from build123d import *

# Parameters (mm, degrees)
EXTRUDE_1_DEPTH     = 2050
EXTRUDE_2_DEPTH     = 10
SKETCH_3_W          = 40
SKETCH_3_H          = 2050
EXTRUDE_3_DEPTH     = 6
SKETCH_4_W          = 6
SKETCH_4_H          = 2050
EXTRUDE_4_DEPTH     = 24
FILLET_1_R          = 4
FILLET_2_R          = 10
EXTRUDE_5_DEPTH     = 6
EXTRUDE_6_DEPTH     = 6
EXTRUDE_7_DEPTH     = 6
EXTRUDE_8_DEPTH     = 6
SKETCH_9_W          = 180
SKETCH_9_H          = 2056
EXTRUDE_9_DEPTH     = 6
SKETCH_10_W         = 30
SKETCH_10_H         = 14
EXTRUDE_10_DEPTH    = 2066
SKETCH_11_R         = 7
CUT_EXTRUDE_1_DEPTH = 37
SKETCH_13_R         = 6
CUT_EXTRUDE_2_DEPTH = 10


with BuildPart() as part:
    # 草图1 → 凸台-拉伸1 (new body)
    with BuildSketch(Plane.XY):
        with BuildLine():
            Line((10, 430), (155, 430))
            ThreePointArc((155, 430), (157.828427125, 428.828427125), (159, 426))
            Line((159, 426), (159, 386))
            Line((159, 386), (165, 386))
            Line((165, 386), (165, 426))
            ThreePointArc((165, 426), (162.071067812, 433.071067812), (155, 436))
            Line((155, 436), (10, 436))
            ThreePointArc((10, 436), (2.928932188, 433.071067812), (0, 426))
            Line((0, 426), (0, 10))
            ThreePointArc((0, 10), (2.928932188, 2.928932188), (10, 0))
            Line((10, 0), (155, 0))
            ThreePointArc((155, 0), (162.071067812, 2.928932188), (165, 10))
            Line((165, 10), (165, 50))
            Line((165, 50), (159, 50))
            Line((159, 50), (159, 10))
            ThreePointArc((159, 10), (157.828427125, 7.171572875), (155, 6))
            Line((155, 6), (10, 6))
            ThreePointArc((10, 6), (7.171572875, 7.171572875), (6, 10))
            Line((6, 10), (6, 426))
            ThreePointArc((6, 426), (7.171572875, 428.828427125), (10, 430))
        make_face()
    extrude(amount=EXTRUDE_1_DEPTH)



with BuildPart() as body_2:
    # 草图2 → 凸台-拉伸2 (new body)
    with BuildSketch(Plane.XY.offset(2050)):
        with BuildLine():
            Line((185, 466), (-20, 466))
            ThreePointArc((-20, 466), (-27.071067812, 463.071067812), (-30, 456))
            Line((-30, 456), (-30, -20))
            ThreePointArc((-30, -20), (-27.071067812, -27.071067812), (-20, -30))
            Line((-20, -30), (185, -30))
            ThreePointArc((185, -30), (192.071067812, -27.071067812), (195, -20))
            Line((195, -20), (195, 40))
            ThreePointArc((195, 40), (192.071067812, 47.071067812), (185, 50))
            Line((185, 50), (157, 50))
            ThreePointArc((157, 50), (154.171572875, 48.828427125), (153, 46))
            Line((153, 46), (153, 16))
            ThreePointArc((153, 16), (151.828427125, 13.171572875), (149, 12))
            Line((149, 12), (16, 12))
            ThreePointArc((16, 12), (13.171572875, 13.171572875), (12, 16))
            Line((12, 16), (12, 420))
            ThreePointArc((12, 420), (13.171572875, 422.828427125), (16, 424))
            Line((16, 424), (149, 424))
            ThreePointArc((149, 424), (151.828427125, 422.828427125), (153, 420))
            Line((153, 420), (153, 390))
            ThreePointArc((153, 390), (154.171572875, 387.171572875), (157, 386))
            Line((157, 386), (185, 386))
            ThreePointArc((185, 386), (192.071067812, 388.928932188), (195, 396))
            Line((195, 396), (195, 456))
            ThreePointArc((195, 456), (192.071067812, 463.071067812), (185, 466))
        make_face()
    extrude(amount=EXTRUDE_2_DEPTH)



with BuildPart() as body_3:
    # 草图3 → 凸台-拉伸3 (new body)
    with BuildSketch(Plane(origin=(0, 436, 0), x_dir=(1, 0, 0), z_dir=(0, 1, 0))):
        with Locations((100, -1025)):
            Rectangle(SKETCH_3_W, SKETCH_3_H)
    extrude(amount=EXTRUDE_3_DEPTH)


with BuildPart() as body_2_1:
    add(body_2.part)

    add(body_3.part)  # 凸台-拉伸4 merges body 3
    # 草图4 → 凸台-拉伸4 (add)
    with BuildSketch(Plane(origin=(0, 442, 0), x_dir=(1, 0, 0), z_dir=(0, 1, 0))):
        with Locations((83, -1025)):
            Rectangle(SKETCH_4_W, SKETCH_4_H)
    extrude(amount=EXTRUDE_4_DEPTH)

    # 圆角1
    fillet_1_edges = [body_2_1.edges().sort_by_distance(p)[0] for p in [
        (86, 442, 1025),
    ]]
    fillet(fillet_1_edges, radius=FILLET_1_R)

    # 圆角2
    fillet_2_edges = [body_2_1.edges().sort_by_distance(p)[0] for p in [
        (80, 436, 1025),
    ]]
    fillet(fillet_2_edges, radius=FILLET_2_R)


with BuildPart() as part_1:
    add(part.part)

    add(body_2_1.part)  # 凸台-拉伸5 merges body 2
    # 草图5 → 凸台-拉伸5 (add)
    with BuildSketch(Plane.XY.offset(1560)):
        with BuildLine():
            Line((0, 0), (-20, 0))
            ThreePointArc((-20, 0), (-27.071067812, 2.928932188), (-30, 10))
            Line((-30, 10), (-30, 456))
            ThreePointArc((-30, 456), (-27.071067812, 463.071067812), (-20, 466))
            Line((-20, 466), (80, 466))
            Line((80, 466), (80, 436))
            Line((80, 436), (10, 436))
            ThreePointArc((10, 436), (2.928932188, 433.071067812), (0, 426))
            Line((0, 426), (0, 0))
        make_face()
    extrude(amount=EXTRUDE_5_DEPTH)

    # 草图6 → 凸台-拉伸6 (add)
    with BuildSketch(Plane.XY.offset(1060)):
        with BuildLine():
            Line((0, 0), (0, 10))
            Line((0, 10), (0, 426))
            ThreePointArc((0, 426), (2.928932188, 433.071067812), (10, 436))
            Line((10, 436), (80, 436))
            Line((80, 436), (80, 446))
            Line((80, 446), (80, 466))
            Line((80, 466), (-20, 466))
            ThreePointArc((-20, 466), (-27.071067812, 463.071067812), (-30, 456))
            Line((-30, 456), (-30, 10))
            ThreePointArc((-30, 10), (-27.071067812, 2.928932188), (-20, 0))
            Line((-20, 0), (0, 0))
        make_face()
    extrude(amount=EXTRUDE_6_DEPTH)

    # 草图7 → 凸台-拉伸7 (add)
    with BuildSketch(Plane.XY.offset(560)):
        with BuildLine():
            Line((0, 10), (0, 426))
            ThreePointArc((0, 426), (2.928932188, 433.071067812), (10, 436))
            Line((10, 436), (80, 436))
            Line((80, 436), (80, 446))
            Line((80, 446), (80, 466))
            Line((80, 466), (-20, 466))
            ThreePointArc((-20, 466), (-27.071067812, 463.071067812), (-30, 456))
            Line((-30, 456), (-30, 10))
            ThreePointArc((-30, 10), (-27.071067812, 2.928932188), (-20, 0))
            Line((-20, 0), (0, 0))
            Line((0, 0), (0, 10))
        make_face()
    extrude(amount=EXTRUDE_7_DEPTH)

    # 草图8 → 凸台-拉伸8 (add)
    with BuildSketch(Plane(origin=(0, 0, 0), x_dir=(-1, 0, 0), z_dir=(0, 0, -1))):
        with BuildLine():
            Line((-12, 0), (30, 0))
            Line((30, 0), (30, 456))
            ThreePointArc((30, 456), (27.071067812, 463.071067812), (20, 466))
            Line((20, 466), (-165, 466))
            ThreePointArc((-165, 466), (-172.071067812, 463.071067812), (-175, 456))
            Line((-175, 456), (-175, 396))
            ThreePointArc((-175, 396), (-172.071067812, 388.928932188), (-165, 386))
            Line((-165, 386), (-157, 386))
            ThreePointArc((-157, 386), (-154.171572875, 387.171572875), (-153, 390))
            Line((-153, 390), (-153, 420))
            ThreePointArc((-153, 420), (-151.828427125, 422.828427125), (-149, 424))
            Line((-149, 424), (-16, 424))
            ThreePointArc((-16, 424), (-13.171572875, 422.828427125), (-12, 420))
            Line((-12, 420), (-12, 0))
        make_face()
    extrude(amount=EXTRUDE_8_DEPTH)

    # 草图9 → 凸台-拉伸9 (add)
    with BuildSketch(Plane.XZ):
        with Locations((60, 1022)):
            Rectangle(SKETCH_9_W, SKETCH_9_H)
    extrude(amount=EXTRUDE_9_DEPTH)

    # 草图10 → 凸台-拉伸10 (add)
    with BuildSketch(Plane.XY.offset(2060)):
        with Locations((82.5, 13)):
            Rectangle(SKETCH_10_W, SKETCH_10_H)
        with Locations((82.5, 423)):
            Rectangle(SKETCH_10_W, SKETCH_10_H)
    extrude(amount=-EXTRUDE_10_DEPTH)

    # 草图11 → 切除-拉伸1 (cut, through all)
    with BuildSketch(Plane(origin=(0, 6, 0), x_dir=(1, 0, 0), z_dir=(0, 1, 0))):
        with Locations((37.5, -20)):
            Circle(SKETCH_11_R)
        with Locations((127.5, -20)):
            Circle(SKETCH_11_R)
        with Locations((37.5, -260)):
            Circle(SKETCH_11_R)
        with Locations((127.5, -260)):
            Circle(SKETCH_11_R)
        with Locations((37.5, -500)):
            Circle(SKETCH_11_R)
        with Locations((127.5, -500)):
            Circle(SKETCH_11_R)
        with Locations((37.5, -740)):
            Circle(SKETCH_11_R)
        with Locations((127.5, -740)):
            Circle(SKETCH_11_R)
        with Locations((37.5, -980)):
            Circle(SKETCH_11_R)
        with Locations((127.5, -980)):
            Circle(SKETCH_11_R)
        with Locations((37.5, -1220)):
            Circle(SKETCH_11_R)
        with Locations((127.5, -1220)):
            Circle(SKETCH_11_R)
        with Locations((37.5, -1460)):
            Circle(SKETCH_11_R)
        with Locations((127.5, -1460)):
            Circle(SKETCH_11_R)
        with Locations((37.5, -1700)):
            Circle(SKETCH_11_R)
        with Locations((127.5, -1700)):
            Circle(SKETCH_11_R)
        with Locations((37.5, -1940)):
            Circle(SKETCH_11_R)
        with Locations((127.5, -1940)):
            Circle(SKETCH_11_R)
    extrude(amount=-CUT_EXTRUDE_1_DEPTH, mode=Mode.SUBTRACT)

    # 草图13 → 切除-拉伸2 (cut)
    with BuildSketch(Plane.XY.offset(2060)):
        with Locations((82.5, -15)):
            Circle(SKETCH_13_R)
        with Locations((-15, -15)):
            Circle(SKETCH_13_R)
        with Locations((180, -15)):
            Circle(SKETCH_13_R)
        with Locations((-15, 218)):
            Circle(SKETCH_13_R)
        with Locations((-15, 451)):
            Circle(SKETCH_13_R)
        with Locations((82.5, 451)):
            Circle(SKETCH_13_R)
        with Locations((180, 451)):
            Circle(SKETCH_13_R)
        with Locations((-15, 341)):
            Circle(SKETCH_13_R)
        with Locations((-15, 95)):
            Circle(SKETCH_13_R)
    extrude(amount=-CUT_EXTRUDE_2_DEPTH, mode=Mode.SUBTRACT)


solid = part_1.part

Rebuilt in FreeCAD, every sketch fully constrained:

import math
import FreeCAD as App
import Part
import Sketcher
from FreeCAD import Vector
Q = App.Units.Quantity


def edges_at(feature, points):
    """Names of the edges that pass closest to the given points."""
    edges = feature.Shape.Edges
    near = lambda p: min(range(len(edges)), key=lambda i: edges[i].distToShape(Part.Vertex(*p))[0])
    return sorted({f"Edge{near(p) + 1}" for p in points})

doc = App.newDocument("Part")
params = doc.addObject("Spreadsheet::Sheet", "Params")
for row, (alias, value) in enumerate([
    ("sketch1_radius", "4 mm"),
    ("sketch1_radius2", "10 mm"),
    ("sketch1_width", "145 mm"),
    ("sketch1_height", "40 mm"),
    ("sketch1_height2", "416 mm"),
    ("pad1_length", "2050 mm"),
    ("sketch2_radius", "10 mm"),
    ("sketch2_radius2", "4 mm"),
    ("sketch2_width", "205 mm"),
    ("sketch2_width2", "28 mm"),
    ("sketch2_width3", "133 mm"),
    ("pad2_length", "10 mm"),
    ("sketch3_width", "40 mm"),
    ("sketch3_height", "2050 mm"),
    ("pad3_length", "6 mm"),
    ("sketch4_width", "6 mm"),
    ("sketch4_height", "2050 mm"),
    ("pad4_length", "24 mm"),
    ("fillet_radius", "4 mm"),
    ("fillet2_radius", "10 mm"),
    ("sketch5_radius", "10 mm"),
    ("sketch5_width", "20 mm"),
    ("sketch5_width2", "70 mm"),
    ("sketch5_height", "426 mm"),
    ("sketch5_height2", "30 mm"),
    ("pad5_length", "6 mm"),
    ("sketch6_radius", "10 mm"),
    ("sketch6_width", "70 mm"),
    ("sketch6_width2", "100 mm"),
    ("sketch6_height", "426 mm"),
    ("sketch6_height2", "30 mm"),
    ("pad6_length", "6 mm"),
    ("sketch7_radius", "10 mm"),
    ("sketch7_width", "70 mm"),
    ("sketch7_width2", "100 mm"),
    ("sketch7_height", "30 mm"),
    ("sketch7_height2", "446 mm"),
    ("pad7_length", "6 mm"),
    ("sketch8_radius", "10 mm"),
    ("sketch8_radius2", "4 mm"),
    ("sketch8_width", "42 mm"),
    ("sketch8_width2", "185 mm"),
    ("sketch8_width3", "8 mm"),
    ("pad8_length", "6 mm"),
    ("sketch9_width", "180 mm"),
    ("sketch9_height", "2056 mm"),
    ("pad9_length", "6 mm"),
    ("sketch10_width", "30 mm"),
    ("sketch10_height", "14 mm"),
    ("pad10_length", "2066 mm"),
    ("sketch11_diameter", "14 mm"),
    ("sketch12_diameter", "12 mm"),
    ("pocket2_length", "10 mm"),
], start=1):
    params.set(f"A{row}", alias)
    params.set(f"B{row}", "=" + value)
    params.setAlias(f"B{row}", alias)

body = doc.addObject("PartDesign::Body", "Body")

# Sketch on XY plane
sketch1 = doc.addObject("Sketcher::SketchObject", "Sketch")
body.addObject(sketch1)
sketch1.AttachmentSupport = (doc.XY_Plane, [""])
sketch1.MapMode = "FlatFace"
sketch1.addGeometry([
    Part.LineSegment(Vector(10, 430, 0), Vector(155, 430, 0)),  # 0
    Part.ArcOfCircle(Part.Circle(Vector(155, 426, 0), Vector(0, 0, 1), 4), math.radians(0), math.radians(90)),  # 1
    Part.LineSegment(Vector(159, 426, 0), Vector(159, 386, 0)),  # 2
    Part.LineSegment(Vector(159, 386, 0), Vector(165, 386, 0)),  # 3
    Part.LineSegment(Vector(165, 386, 0), Vector(165, 426, 0)),  # 4
    Part.ArcOfCircle(Part.Circle(Vector(155, 426, 0), Vector(0, 0, 1), 10), math.radians(0), math.radians(90)),  # 5
    Part.LineSegment(Vector(155, 436, 0), Vector(10, 436, 0)),  # 6
    Part.ArcOfCircle(Part.Circle(Vector(10, 426, 0), Vector(0, 0, 1), 10), math.radians(90), math.radians(180)),  # 7
    Part.LineSegment(Vector(0, 426, 0), Vector(0, 10, 0)),  # 8
    Part.ArcOfCircle(Part.Circle(Vector(10, 10, 0), Vector(0, 0, 1), 10), math.radians(180), math.radians(270)),  # 9
    Part.LineSegment(Vector(10, 0, 0), Vector(155, 0, 0)),  # 10
    Part.ArcOfCircle(Part.Circle(Vector(155, 10, 0), Vector(0, 0, 1), 10), math.radians(-90), math.radians(0)),  # 11
    Part.LineSegment(Vector(165, 10, 0), Vector(165, 50, 0)),  # 12
    Part.LineSegment(Vector(165, 50, 0), Vector(159, 50, 0)),  # 13
    Part.LineSegment(Vector(159, 50, 0), Vector(159, 10, 0)),  # 14
    Part.ArcOfCircle(Part.Circle(Vector(155, 10, 0), Vector(0, 0, 1), 4), math.radians(-90), math.radians(0)),  # 15
    Part.LineSegment(Vector(155, 6, 0), Vector(10, 6, 0)),  # 16
    Part.ArcOfCircle(Part.Circle(Vector(10, 10, 0), Vector(0, 0, 1), 4), math.radians(180), math.radians(270)),  # 17
    Part.LineSegment(Vector(6, 10, 0), Vector(6, 426, 0)),  # 18
    Part.ArcOfCircle(Part.Circle(Vector(10, 426, 0), Vector(0, 0, 1), 4), math.radians(90), math.radians(180)),  # 19
], False)
sketch1.addConstraint([
    Sketcher.Constraint("Tangent", 0, 2, 1, 2),
    Sketcher.Constraint("Tangent", 1, 1, 2, 1),
    Sketcher.Constraint("Coincident", 2, 2, 3, 1),
    Sketcher.Constraint("Coincident", 3, 2, 4, 1),
    Sketcher.Constraint("Tangent", 4, 2, 5, 1),
    Sketcher.Constraint("Tangent", 5, 2, 6, 1),
    Sketcher.Constraint("Tangent", 6, 2, 7, 1),
    Sketcher.Constraint("Tangent", 7, 2, 8, 1),
    Sketcher.Constraint("Tangent", 8, 2, 9, 1),
    Sketcher.Constraint("Tangent", 9, 2, 10, 1),
    Sketcher.Constraint("Tangent", 10, 2, 11, 1),
    Sketcher.Constraint("Tangent", 11, 2, 12, 1),
    Sketcher.Constraint("Coincident", 12, 2, 13, 1),
    Sketcher.Constraint("Coincident", 13, 2, 14, 1),
    Sketcher.Constraint("Tangent", 14, 2, 15, 2),
    Sketcher.Constraint("Tangent", 15, 1, 16, 1),
    Sketcher.Constraint("Tangent", 16, 2, 17, 2),
    Sketcher.Constraint("Tangent", 17, 1, 18, 1),
    Sketcher.Constraint("Tangent", 18, 2, 19, 2),
    Sketcher.Constraint("Tangent", 19, 1, 0, 1),
    Sketcher.Constraint("Horizontal", 0),
    Sketcher.Constraint("Vertical", 2),
    Sketcher.Constraint("Horizontal", 3),
    Sketcher.Constraint("Vertical", 4),
    Sketcher.Constraint("Horizontal", 6),
    Sketcher.Constraint("Vertical", 8),
    Sketcher.Constraint("Horizontal", 10),
    Sketcher.Constraint("Vertical", 12),
    Sketcher.Constraint("Horizontal", 13),
    Sketcher.Constraint("Vertical", 14),
    Sketcher.Constraint("Horizontal", 16),
    Sketcher.Constraint("Vertical", 18),
    Sketcher.Constraint("Coincident", 5, 3, 1, 3),
    Sketcher.Constraint("Coincident", 15, 3, 11, 3),
    Sketcher.Constraint("Coincident", 17, 3, 9, 3),
    Sketcher.Constraint("Coincident", 19, 3, 7, 3),
    Sketcher.Constraint("Equal", 5, 7),
    Sketcher.Constraint("Equal", 7, 9),
    Sketcher.Constraint("Equal", 9, 11),
    Sketcher.Constraint("PointOnObject", 7, 2, -2),
    Sketcher.Constraint("PointOnObject", 9, 2, -1),
    Sketcher.Constraint("Vertical", 5, 3, 11, 3),
    Sketcher.Constraint("Equal", 4, 12),
    Sketcher.Constraint("Radius", 1, Q("4 mm")),
    Sketcher.Constraint("Radius", 5, Q("10 mm")),
    Sketcher.Constraint("DistanceX", 0, 1, 0, 2, Q("145 mm")),
    Sketcher.Constraint("DistanceY", 2, 2, 2, 1, Q("40 mm")),
    Sketcher.Constraint("DistanceY", 8, 2, 8, 1, Q("416 mm")),
])
sketch1.setExpression("Constraints[43]", "Params.sketch1_radius")
sketch1.setExpression("Constraints[44]", "Params.sketch1_radius2")
sketch1.setExpression("Constraints[45]", "Params.sketch1_width")
sketch1.setExpression("Constraints[46]", "Params.sketch1_height")
sketch1.setExpression("Constraints[47]", "Params.sketch1_height2")
pad1 = doc.addObject("PartDesign::Pad", "Pad")
body.addObject(pad1)
pad1.Profile = sketch1
pad1.setExpression("Length", "Params.pad1_length")
body2 = doc.addObject("PartDesign::Body", "Body001")

# Sketch on XY plane
sketch2 = doc.addObject("Sketcher::SketchObject", "Sketch001")
body2.addObject(sketch2)
sketch2.AttachmentSupport = (doc.getObject("XY_Plane001"), [""])
sketch2.MapMode = "FlatFace"
sketch2.AttachmentOffset = App.Placement(Vector(0, 0, 2050), App.Rotation())
sketch2.addGeometry([
    Part.LineSegment(Vector(185, 466, 0), Vector(-20, 466, 0)),  # 0
    Part.ArcOfCircle(Part.Circle(Vector(-20, 456, 0), Vector(0, 0, 1), 10), math.radians(90), math.radians(180)),  # 1
    Part.LineSegment(Vector(-30, 456, 0), Vector(-30, -20, 0)),  # 2
    Part.ArcOfCircle(Part.Circle(Vector(-20, -20, 0), Vector(0, 0, 1), 10), math.radians(180), math.radians(270)),  # 3
    Part.LineSegment(Vector(-20, -30, 0), Vector(185, -30, 0)),  # 4
    Part.ArcOfCircle(Part.Circle(Vector(185, -20, 0), Vector(0, 0, 1), 10), math.radians(-90), math.radians(0)),  # 5
    Part.LineSegment(Vector(195, -20, 0), Vector(195, 40, 0)),  # 6
    Part.ArcOfCircle(Part.Circle(Vector(185, 40, 0), Vector(0, 0, 1), 10), math.radians(0), math.radians(90)),  # 7
    Part.LineSegment(Vector(185, 50, 0), Vector(157, 50, 0)),  # 8
    Part.ArcOfCircle(Part.Circle(Vector(157, 46, 0), Vector(0, 0, 1), 4), math.radians(90), math.radians(180)),  # 9
    Part.LineSegment(Vector(153, 46, 0), Vector(153, 16, 0)),  # 10
    Part.ArcOfCircle(Part.Circle(Vector(149, 16, 0), Vector(0, 0, 1), 4), math.radians(-90), math.radians(0)),  # 11
    Part.LineSegment(Vector(149, 12, 0), Vector(16, 12, 0)),  # 12
    Part.ArcOfCircle(Part.Circle(Vector(16, 16, 0), Vector(0, 0, 1), 4), math.radians(180), math.radians(270)),  # 13
    Part.LineSegment(Vector(12, 16, 0), Vector(12, 420, 0)),  # 14
    Part.ArcOfCircle(Part.Circle(Vector(16, 420, 0), Vector(0, 0, 1), 4), math.radians(90), math.radians(180)),  # 15
    Part.LineSegment(Vector(16, 424, 0), Vector(149, 424, 0)),  # 16
    Part.ArcOfCircle(Part.Circle(Vector(149, 420, 0), Vector(0, 0, 1), 4), math.radians(0), math.radians(90)),  # 17
    Part.LineSegment(Vector(153, 420, 0), Vector(153, 390, 0)),  # 18
    Part.ArcOfCircle(Part.Circle(Vector(157, 390, 0), Vector(0, 0, 1), 4), math.radians(180), math.radians(270)),  # 19
    Part.LineSegment(Vector(157, 386, 0), Vector(185, 386, 0)),  # 20
    Part.ArcOfCircle(Part.Circle(Vector(185, 396, 0), Vector(0, 0, 1), 10), math.radians(-90), math.radians(0)),  # 21
    Part.LineSegment(Vector(195, 396, 0), Vector(195, 456, 0)),  # 22
    Part.ArcOfCircle(Part.Circle(Vector(185, 456, 0), Vector(0, 0, 1), 10), math.radians(0), math.radians(90)),  # 23
], False)
sketch2.addConstraint([
    Sketcher.Constraint("Tangent", 0, 2, 1, 1),
    Sketcher.Constraint("Tangent", 1, 2, 2, 1),
    Sketcher.Constraint("Tangent", 2, 2, 3, 1),
    Sketcher.Constraint("Tangent", 3, 2, 4, 1),
    Sketcher.Constraint("Tangent", 4, 2, 5, 1),
    Sketcher.Constraint("Tangent", 5, 2, 6, 1),
    Sketcher.Constraint("Tangent", 6, 2, 7, 1),
    Sketcher.Constraint("Tangent", 7, 2, 8, 1),
    Sketcher.Constraint("Tangent", 8, 2, 9, 1),
    Sketcher.Constraint("Tangent", 9, 2, 10, 1),
    Sketcher.Constraint("Tangent", 10, 2, 11, 2),
    Sketcher.Constraint("Tangent", 11, 1, 12, 1),
    Sketcher.Constraint("Tangent", 12, 2, 13, 2),
    Sketcher.Constraint("Tangent", 13, 1, 14, 1),
    Sketcher.Constraint("Tangent", 14, 2, 15, 2),
    Sketcher.Constraint("Tangent", 15, 1, 16, 1),
    Sketcher.Constraint("Tangent", 16, 2, 17, 2),
    Sketcher.Constraint("Tangent", 17, 1, 18, 1),
    Sketcher.Constraint("Tangent", 18, 2, 19, 1),
    Sketcher.Constraint("Tangent", 19, 2, 20, 1),
    Sketcher.Constraint("Tangent", 20, 2, 21, 1),
    Sketcher.Constraint("Tangent", 21, 2, 22, 1),
    Sketcher.Constraint("Tangent", 22, 2, 23, 1),
    Sketcher.Constraint("Tangent", 23, 2, 0, 1),
    Sketcher.Constraint("Horizontal", 0),
    Sketcher.Constraint("Vertical", 2),
    Sketcher.Constraint("Horizontal", 4),
    Sketcher.Constraint("Vertical", 6),
    Sketcher.Constraint("Horizontal", 8),
    Sketcher.Constraint("Vertical", 10),
    Sketcher.Constraint("Horizontal", 12),
    Sketcher.Constraint("Vertical", 14),
    Sketcher.Constraint("Horizontal", 16),
    Sketcher.Constraint("Vertical", 18),
    Sketcher.Constraint("Horizontal", 20),
    Sketcher.Constraint("Vertical", 22),
    Sketcher.Constraint("Equal", 1, 3),
    Sketcher.Constraint("Equal", 3, 5),
    Sketcher.Constraint("Equal", 5, 7),
    Sketcher.Constraint("Equal", 9, 11),
    Sketcher.Constraint("Equal", 11, 13),
    Sketcher.Constraint("Equal", 13, 15),
    Sketcher.Constraint("Equal", 15, 17),
    Sketcher.Constraint("Equal", 17, 19),
    Sketcher.Constraint("Equal", 7, 21),
    Sketcher.Constraint("Equal", 21, 23),
    Sketcher.Constraint("Vertical", 11, 3, 17, 3),
    Sketcher.Constraint("Vertical", 7, 3, 21, 3),
    Sketcher.Constraint("Equal", 10, 18),
    Sketcher.Constraint("Equal", 6, 22),
    Sketcher.Constraint("Radius", 1, Q("10 mm")),
    Sketcher.Constraint("Radius", 9, Q("4 mm")),
    Sketcher.Constraint("DistanceX", 0, 2, 0, 1, Q("205 mm")),
    Sketcher.Constraint("DistanceX", 8, 2, 8, 1, Q("28 mm")),
    Sketcher.Constraint("DistanceX", 12, 2, 12, 1, Q("133 mm")),
    Sketcher.Constraint("DistanceY", 2, 2, 2, 1, Q("476 mm")),
    Sketcher.Constraint("DistanceY", 6, 1, 6, 2, Q("60 mm")),
    Sketcher.Constraint("DistanceY", 10, 2, 10, 1, Q("30 mm")),
    Sketcher.Constraint("DistanceX", 1, 3, -1, 1, Q("20 mm")),
    Sketcher.Constraint("DistanceY", -1, 1, 1, 3, Q("456 mm")),
])
sketch2.setExpression("Constraints[50]", "Params.sketch2_radius")
sketch2.setExpression("Constraints[51]", "Params.sketch2_radius2")
sketch2.setExpression("Constraints[52]", "Params.sketch2_width")
sketch2.setExpression("Constraints[53]", "Params.sketch2_width2")
sketch2.setExpression("Constraints[54]", "Params.sketch2_width3")
pad2 = doc.addObject("PartDesign::Pad", "Pad001")
body2.addObject(pad2)
pad2.Profile = sketch2
pad2.setExpression("Length", "Params.pad2_length")
body3 = doc.addObject("PartDesign::Body", "Body002")

# Sketch on XZ plane
sketch3 = doc.addObject("Sketcher::SketchObject", "Sketch002")
body3.addObject(sketch3)
sketch3.AttachmentSupport = (doc.getObject("XZ_Plane002"), [""])
sketch3.MapMode = "FlatFace"
sketch3.AttachmentOffset = App.Placement(Vector(0, 0, -436), App.Rotation())
sketch3.addGeometry([
    Part.LineSegment(Vector(80, 0, 0), Vector(80, 2050, 0)),
    Part.LineSegment(Vector(80, 2050, 0), Vector(120, 2050, 0)),
    Part.LineSegment(Vector(120, 2050, 0), Vector(120, 0, 0)),
    Part.LineSegment(Vector(120, 0, 0), Vector(80, 0, 0)),
], False)
sketch3.addConstraint([
    Sketcher.Constraint("Coincident", 0, 2, 1, 1),
    Sketcher.Constraint("Coincident", 1, 2, 2, 1),
    Sketcher.Constraint("Coincident", 2, 2, 3, 1),
    Sketcher.Constraint("Coincident", 3, 2, 0, 1),
    Sketcher.Constraint("Vertical", 0),
    Sketcher.Constraint("Horizontal", 1),
    Sketcher.Constraint("Vertical", 2),
    Sketcher.Constraint("Horizontal", 3),
    Sketcher.Constraint("PointOnObject", 2, 2, -1),
    Sketcher.Constraint("DistanceX", 1, 1, 1, 2, Q("40 mm")),
    Sketcher.Constraint("DistanceY", 0, 1, 0, 2, Q("2050 mm")),
    Sketcher.Constraint("DistanceX", -1, 1, 0, 2, Q("80 mm")),
])
sketch3.setExpression("Constraints[9]", "Params.sketch3_width")
sketch3.setExpression("Constraints[10]", "Params.sketch3_height")
pad3 = doc.addObject("PartDesign::Pad", "Pad002")
body3.addObject(pad3)
pad3.Profile = sketch3
pad3.setExpression("Length", "Params.pad3_length")
pad3.Reversed = True
doc.recompute()

boolean = doc.addObject("PartDesign::Boolean", "Boolean")
body2.addObject(boolean)
boolean.Type = "Fuse"
boolean.addObjects([body3])

# Sketch on XZ plane
sketch4 = doc.addObject("Sketcher::SketchObject", "Sketch003")
body2.addObject(sketch4)
sketch4.AttachmentSupport = (doc.getObject("XZ_Plane001"), [""])
sketch4.MapMode = "FlatFace"
sketch4.AttachmentOffset = App.Placement(Vector(0, 0, -442), App.Rotation())
sketch4.addGeometry([
    Part.LineSegment(Vector(80, 0, 0), Vector(80, 2050, 0)),
    Part.LineSegment(Vector(80, 2050, 0), Vector(86, 2050, 0)),
    Part.LineSegment(Vector(86, 2050, 0), Vector(86, 0, 0)),
    Part.LineSegment(Vector(86, 0, 0), Vector(80, 0, 0)),
], False)
sketch4.addConstraint([
    Sketcher.Constraint("Coincident", 0, 2, 1, 1),
    Sketcher.Constraint("Coincident", 1, 2, 2, 1),
    Sketcher.Constraint("Coincident", 2, 2, 3, 1),
    Sketcher.Constraint("Coincident", 3, 2, 0, 1),
    Sketcher.Constraint("Vertical", 0),
    Sketcher.Constraint("Horizontal", 1),
    Sketcher.Constraint("Vertical", 2),
    Sketcher.Constraint("Horizontal", 3),
    Sketcher.Constraint("PointOnObject", 2, 2, -1),
    Sketcher.Constraint("DistanceX", 1, 1, 1, 2, Q("6 mm")),
    Sketcher.Constraint("DistanceY", 0, 1, 0, 2, Q("2050 mm")),
    Sketcher.Constraint("DistanceX", -1, 1, 0, 2, Q("80 mm")),
])
sketch4.setExpression("Constraints[9]", "Params.sketch4_width")
sketch4.setExpression("Constraints[10]", "Params.sketch4_height")
pad4 = doc.addObject("PartDesign::Pad", "Pad003")
body2.addObject(pad4)
pad4.Profile = sketch4
pad4.setExpression("Length", "Params.pad4_length")
pad4.Reversed = True
doc.recompute()

fillet = doc.addObject("PartDesign::Fillet", "Fillet")
body2.addObject(fillet)
fillet.Base = (pad4, edges_at(pad4, [(86, 442, 1025)]))
fillet.setExpression("Radius", "Params.fillet_radius")
doc.recompute()

fillet2 = doc.addObject("PartDesign::Fillet", "Fillet001")
body2.addObject(fillet2)
fillet2.Base = (fillet, edges_at(fillet, [(80, 436, 1025)]))
fillet2.setExpression("Radius", "Params.fillet2_radius")
doc.recompute()

boolean2 = doc.addObject("PartDesign::Boolean", "Boolean001")
body.addObject(boolean2)
boolean2.Type = "Fuse"
boolean2.addObjects([body2])

# Sketch on XY plane
sketch5 = doc.addObject("Sketcher::SketchObject", "Sketch004")
body.addObject(sketch5)
sketch5.AttachmentSupport = (doc.XY_Plane, [""])
sketch5.MapMode = "FlatFace"
sketch5.AttachmentOffset = App.Placement(Vector(0, 0, 1560), App.Rotation())
sketch5.addGeometry([
    Part.LineSegment(Vector(-20, 0, 0), Vector(0, 0, 0)),  # 0
    Part.LineSegment(Vector(0, 0, 0), Vector(0, 426, 0)),  # 1
    Part.ArcOfCircle(Part.Circle(Vector(10, 426, 0), Vector(0, 0, 1), 10), math.radians(90), math.radians(180)),  # 2
    Part.LineSegment(Vector(10, 436, 0), Vector(80, 436, 0)),  # 3
    Part.LineSegment(Vector(80, 436, 0), Vector(80, 466, 0)),  # 4
    Part.LineSegment(Vector(80, 466, 0), Vector(-20, 466, 0)),  # 5
    Part.ArcOfCircle(Part.Circle(Vector(-20, 456, 0), Vector(0, 0, 1), 10), math.radians(90), math.radians(180)),  # 6
    Part.LineSegment(Vector(-30, 456, 0), Vector(-30, 10, 0)),  # 7
    Part.ArcOfCircle(Part.Circle(Vector(-20, 10, 0), Vector(0, 0, 1), 10), math.radians(180), math.radians(270)),  # 8
], False)
sketch5.addConstraint([
    Sketcher.Constraint("Coincident", 0, 2, 1, 1),
    Sketcher.Constraint("Tangent", 1, 2, 2, 2),
    Sketcher.Constraint("Tangent", 2, 1, 3, 1),
    Sketcher.Constraint("Coincident", 3, 2, 4, 1),
    Sketcher.Constraint("Coincident", 4, 2, 5, 1),
    Sketcher.Constraint("Tangent", 5, 2, 6, 1),
    Sketcher.Constraint("Tangent", 6, 2, 7, 1),
    Sketcher.Constraint("Tangent", 7, 2, 8, 1),
    Sketcher.Constraint("Tangent", 8, 2, 0, 1),
    Sketcher.Constraint("Horizontal", 0),
    Sketcher.Constraint("Vertical", 1),
    Sketcher.Constraint("Horizontal", 3),
    Sketcher.Constraint("Vertical", 4),
    Sketcher.Constraint("Horizontal", 5),
    Sketcher.Constraint("Vertical", 7),
    Sketcher.Constraint("Coincident", 0, 2, -1, 1),
    Sketcher.Constraint("Equal", 2, 6),
    Sketcher.Constraint("Equal", 6, 8),
    Sketcher.Constraint("Radius", 2, Q("10 mm")),
    Sketcher.Constraint("DistanceX", 0, 1, 0, 2, Q("20 mm")),
    Sketcher.Constraint("DistanceX", 3, 1, 3, 2, Q("70 mm")),
    Sketcher.Constraint("DistanceY", 1, 1, 1, 2, Q("426 mm")),
    Sketcher.Constraint("DistanceY", 4, 1, 4, 2, Q("30 mm")),
])
sketch5.setExpression("Constraints[18]", "Params.sketch5_radius")
sketch5.setExpression("Constraints[19]", "Params.sketch5_width")
sketch5.setExpression("Constraints[20]", "Params.sketch5_width2")
sketch5.setExpression("Constraints[21]", "Params.sketch5_height")
sketch5.setExpression("Constraints[22]", "Params.sketch5_height2")
pad5 = doc.addObject("PartDesign::Pad", "Pad004")
body.addObject(pad5)
pad5.Profile = sketch5
pad5.setExpression("Length", "Params.pad5_length")

# Sketch on XY plane
sketch6 = doc.addObject("Sketcher::SketchObject", "Sketch005")
body.addObject(sketch6)
sketch6.AttachmentSupport = (doc.XY_Plane, [""])
sketch6.MapMode = "FlatFace"
sketch6.AttachmentOffset = App.Placement(Vector(0, 0, 1060), App.Rotation())
sketch6.addGeometry([
    Part.LineSegment(Vector(0, 0, 0), Vector(0, 426, 0)),  # 0
    Part.ArcOfCircle(Part.Circle(Vector(10, 426, 0), Vector(0, 0, 1), 10), math.radians(90), math.radians(180)),  # 1
    Part.LineSegment(Vector(10, 436, 0), Vector(80, 436, 0)),  # 2
    Part.LineSegment(Vector(80, 436, 0), Vector(80, 466, 0)),  # 3
    Part.LineSegment(Vector(80, 466, 0), Vector(-20, 466, 0)),  # 4
    Part.ArcOfCircle(Part.Circle(Vector(-20, 456, 0), Vector(0, 0, 1), 10), math.radians(90), math.radians(180)),  # 5
    Part.LineSegment(Vector(-30, 456, 0), Vector(-30, 10, 0)),  # 6
    Part.ArcOfCircle(Part.Circle(Vector(-20, 10, 0), Vector(0, 0, 1), 10), math.radians(180), math.radians(270)),  # 7
    Part.LineSegment(Vector(-20, 0, 0), Vector(0, 0, 0)),  # 8
], False)
sketch6.addConstraint([
    Sketcher.Constraint("Tangent", 0, 2, 1, 2),
    Sketcher.Constraint("Tangent", 1, 1, 2, 1),
    Sketcher.Constraint("Coincident", 2, 2, 3, 1),
    Sketcher.Constraint("Coincident", 3, 2, 4, 1),
    Sketcher.Constraint("Tangent", 4, 2, 5, 1),
    Sketcher.Constraint("Tangent", 5, 2, 6, 1),
    Sketcher.Constraint("Tangent", 6, 2, 7, 1),
    Sketcher.Constraint("Tangent", 7, 2, 8, 1),
    Sketcher.Constraint("Coincident", 8, 2, 0, 1),
    Sketcher.Constraint("Vertical", 0),
    Sketcher.Constraint("Horizontal", 2),
    Sketcher.Constraint("Vertical", 3),
    Sketcher.Constraint("Horizontal", 4),
    Sketcher.Constraint("Vertical", 6),
    Sketcher.Constraint("Horizontal", 8),
    Sketcher.Constraint("Coincident", 8, 2, -1, 1),
    Sketcher.Constraint("Equal", 1, 5),
    Sketcher.Constraint("Equal", 5, 7),
    Sketcher.Constraint("Radius", 1, Q("10 mm")),
    Sketcher.Constraint("DistanceX", 2, 1, 2, 2, Q("70 mm")),
    Sketcher.Constraint("DistanceX", 4, 2, 4, 1, Q("100 mm")),
    Sketcher.Constraint("DistanceY", 0, 1, 0, 2, Q("426 mm")),
    Sketcher.Constraint("DistanceY", 3, 1, 3, 2, Q("30 mm")),
])
sketch6.setExpression("Constraints[18]", "Params.sketch6_radius")
sketch6.setExpression("Constraints[19]", "Params.sketch6_width")
sketch6.setExpression("Constraints[20]", "Params.sketch6_width2")
sketch6.setExpression("Constraints[21]", "Params.sketch6_height")
sketch6.setExpression("Constraints[22]", "Params.sketch6_height2")
pad6 = doc.addObject("PartDesign::Pad", "Pad005")
body.addObject(pad6)
pad6.Profile = sketch6
pad6.setExpression("Length", "Params.pad6_length")

# Sketch on XY plane
sketch7 = doc.addObject("Sketcher::SketchObject", "Sketch006")
body.addObject(sketch7)
sketch7.AttachmentSupport = (doc.XY_Plane, [""])
sketch7.MapMode = "FlatFace"
sketch7.AttachmentOffset = App.Placement(Vector(0, 0, 560), App.Rotation())
sketch7.addGeometry([
    Part.ArcOfCircle(Part.Circle(Vector(10, 426, 0), Vector(0, 0, 1), 10), math.radians(90), math.radians(180)),  # 0
    Part.LineSegment(Vector(10, 436, 0), Vector(80, 436, 0)),  # 1
    Part.LineSegment(Vector(80, 436, 0), Vector(80, 466, 0)),  # 2
    Part.LineSegment(Vector(80, 466, 0), Vector(-20, 466, 0)),  # 3
    Part.ArcOfCircle(Part.Circle(Vector(-20, 456, 0), Vector(0, 0, 1), 10), math.radians(90), math.radians(180)),  # 4
    Part.LineSegment(Vector(-30, 456, 0), Vector(-30, 10, 0)),  # 5
    Part.ArcOfCircle(Part.Circle(Vector(-20, 10, 0), Vector(0, 0, 1), 10), math.radians(180), math.radians(270)),  # 6
    Part.LineSegment(Vector(-20, 0, 0), Vector(0, 0, 0)),  # 7
    Part.LineSegment(Vector(0, 0, 0), Vector(0, 426, 0)),  # 8
], False)
sketch7.addConstraint([
    Sketcher.Constraint("Tangent", 0, 1, 1, 1),
    Sketcher.Constraint("Coincident", 1, 2, 2, 1),
    Sketcher.Constraint("Coincident", 2, 2, 3, 1),
    Sketcher.Constraint("Tangent", 3, 2, 4, 1),
    Sketcher.Constraint("Tangent", 4, 2, 5, 1),
    Sketcher.Constraint("Tangent", 5, 2, 6, 1),
    Sketcher.Constraint("Tangent", 6, 2, 7, 1),
    Sketcher.Constraint("Coincident", 7, 2, 8, 1),
    Sketcher.Constraint("Tangent", 8, 2, 0, 2),
    Sketcher.Constraint("Horizontal", 1),
    Sketcher.Constraint("Vertical", 2),
    Sketcher.Constraint("Horizontal", 3),
    Sketcher.Constraint("Vertical", 5),
    Sketcher.Constraint("Horizontal", 7),
    Sketcher.Constraint("Vertical", 8),
    Sketcher.Constraint("Coincident", 7, 2, -1, 1),
    Sketcher.Constraint("Equal", 0, 4),
    Sketcher.Constraint("Equal", 4, 6),
    Sketcher.Constraint("Radius", 0, Q("10 mm")),
    Sketcher.Constraint("DistanceX", 1, 1, 1, 2, Q("70 mm")),
    Sketcher.Constraint("DistanceX", 3, 2, 3, 1, Q("100 mm")),
    Sketcher.Constraint("DistanceY", 2, 1, 2, 2, Q("30 mm")),
    Sketcher.Constraint("DistanceY", 5, 2, 5, 1, Q("446 mm")),
])
sketch7.setExpression("Constraints[18]", "Params.sketch7_radius")
sketch7.setExpression("Constraints[19]", "Params.sketch7_width")
sketch7.setExpression("Constraints[20]", "Params.sketch7_width2")
sketch7.setExpression("Constraints[21]", "Params.sketch7_height")
sketch7.setExpression("Constraints[22]", "Params.sketch7_height2")
pad7 = doc.addObject("PartDesign::Pad", "Pad006")
body.addObject(pad7)
pad7.Profile = sketch7
pad7.setExpression("Length", "Params.pad7_length")

# Sketch on XY plane
sketch8 = doc.addObject("Sketcher::SketchObject", "Sketch007")
body.addObject(sketch8)
sketch8.AttachmentSupport = (doc.XY_Plane, [""])
sketch8.MapMode = "FlatFace"
sketch8.addGeometry([
    Part.LineSegment(Vector(12, 0, 0), Vector(-30, 0, 0)),  # 0
    Part.LineSegment(Vector(-30, 0, 0), Vector(-30, 456, 0)),  # 1
    Part.ArcOfCircle(Part.Circle(Vector(-20, 456, 0), Vector(0, 0, 1), 10), math.radians(90), math.radians(180)),  # 2
    Part.LineSegment(Vector(-20, 466, 0), Vector(165, 466, 0)),  # 3
    Part.ArcOfCircle(Part.Circle(Vector(165, 456, 0), Vector(0, 0, 1), 10), math.radians(0), math.radians(90)),  # 4
    Part.LineSegment(Vector(175, 456, 0), Vector(175, 396, 0)),  # 5
    Part.ArcOfCircle(Part.Circle(Vector(165, 396, 0), Vector(0, 0, 1), 10), math.radians(-90), math.radians(0)),  # 6
    Part.LineSegment(Vector(165, 386, 0), Vector(157, 386, 0)),  # 7
    Part.ArcOfCircle(Part.Circle(Vector(157, 390, 0), Vector(0, 0, 1), 4), math.radians(180), math.radians(270)),  # 8
    Part.LineSegment(Vector(153, 390, 0), Vector(153, 420, 0)),  # 9
    Part.ArcOfCircle(Part.Circle(Vector(149, 420, 0), Vector(0, 0, 1), 4), math.radians(0), math.radians(90)),  # 10
    Part.LineSegment(Vector(149, 424, 0), Vector(16, 424, 0)),  # 11
    Part.ArcOfCircle(Part.Circle(Vector(16, 420, 0), Vector(0, 0, 1), 4), math.radians(90), math.radians(180)),  # 12
    Part.LineSegment(Vector(12, 420, 0), Vector(12, 0, 0)),  # 13
], False)
sketch8.addConstraint([
    Sketcher.Constraint("Coincident", 0, 2, 1, 1),
    Sketcher.Constraint("Tangent", 1, 2, 2, 2),
    Sketcher.Constraint("Tangent", 2, 1, 3, 1),
    Sketcher.Constraint("Tangent", 3, 2, 4, 2),
    Sketcher.Constraint("Tangent", 4, 1, 5, 1),
    Sketcher.Constraint("Tangent", 5, 2, 6, 2),
    Sketcher.Constraint("Tangent", 6, 1, 7, 1),
    Sketcher.Constraint("Tangent", 7, 2, 8, 2),
    Sketcher.Constraint("Tangent", 8, 1, 9, 1),
    Sketcher.Constraint("Tangent", 9, 2, 10, 1),
    Sketcher.Constraint("Tangent", 10, 2, 11, 1),
    Sketcher.Constraint("Tangent", 11, 2, 12, 1),
    Sketcher.Constraint("Tangent", 12, 2, 13, 1),
    Sketcher.Constraint("Coincident", 13, 2, 0, 1),
    Sketcher.Constraint("Horizontal", 0),
    Sketcher.Constraint("Vertical", 1),
    Sketcher.Constraint("Horizontal", 3),
    Sketcher.Constraint("Vertical", 5),
    Sketcher.Constraint("Horizontal", 7),
    Sketcher.Constraint("Vertical", 9),
    Sketcher.Constraint("Horizontal", 11),
    Sketcher.Constraint("Vertical", 13),
    Sketcher.Constraint("Equal", 2, 4),
    Sketcher.Constraint("Equal", 4, 6),
    Sketcher.Constraint("Equal", 8, 10),
    Sketcher.Constraint("Equal", 10, 12),
    Sketcher.Constraint("PointOnObject", 0, 2, -1),
    Sketcher.Constraint("Radius", 2, Q("10 mm")),
    Sketcher.Constraint("Radius", 8, Q("4 mm")),
    Sketcher.Constraint("DistanceX", 0, 2, 0, 1, Q("42 mm")),
    Sketcher.Constraint("DistanceX", 3, 1, 3, 2, Q("185 mm")),
    Sketcher.Constraint("DistanceX", 7, 2, 7, 1, Q("8 mm")),
    Sketcher.Constraint("DistanceY", 1, 1, 1, 2, Q("456 mm")),
    Sketcher.Constraint("DistanceY", 5, 2, 5, 1, Q("60 mm")),
    Sketcher.Constraint("DistanceY", 9, 1, 9, 2, Q("30 mm")),
    Sketcher.Constraint("DistanceX", 2, 3, -1, 1, Q("20 mm")),
])
sketch8.setExpression("Constraints[27]", "Params.sketch8_radius")
sketch8.setExpression("Constraints[28]", "Params.sketch8_radius2")
sketch8.setExpression("Constraints[29]", "Params.sketch8_width")
sketch8.setExpression("Constraints[30]", "Params.sketch8_width2")
sketch8.setExpression("Constraints[31]", "Params.sketch8_width3")
pad8 = doc.addObject("PartDesign::Pad", "Pad007")
body.addObject(pad8)
pad8.Profile = sketch8
pad8.setExpression("Length", "Params.pad8_length")
pad8.Reversed = True

# Sketch on XZ plane
sketch9 = doc.addObject("Sketcher::SketchObject", "Sketch008")
body.addObject(sketch9)
sketch9.AttachmentSupport = (doc.XZ_Plane, [""])
sketch9.MapMode = "FlatFace"
sketch9.addGeometry([
    Part.LineSegment(Vector(-30, 2050, 0), Vector(-30, -6, 0)),
    Part.LineSegment(Vector(-30, -6, 0), Vector(150, -6, 0)),
    Part.LineSegment(Vector(150, -6, 0), Vector(150, 2050, 0)),
    Part.LineSegment(Vector(150, 2050, 0), Vector(-30, 2050, 0)),
], False)
sketch9.addConstraint([
    Sketcher.Constraint("Coincident", 0, 2, 1, 1),
    Sketcher.Constraint("Coincident", 1, 2, 2, 1),
    Sketcher.Constraint("Coincident", 2, 2, 3, 1),
    Sketcher.Constraint("Coincident", 3, 2, 0, 1),
    Sketcher.Constraint("Vertical", 0),
    Sketcher.Constraint("Horizontal", 1),
    Sketcher.Constraint("Vertical", 2),
    Sketcher.Constraint("Horizontal", 3),
    Sketcher.Constraint("DistanceX", 1, 1, 1, 2, Q("180 mm")),
    Sketcher.Constraint("DistanceY", 0, 2, 0, 1, Q("2056 mm")),
    Sketcher.Constraint("DistanceX", 0, 2, -1, 1, Q("30 mm")),
    Sketcher.Constraint("DistanceY", 0, 2, -1, 1, Q("6 mm")),
])
sketch9.setExpression("Constraints[8]", "Params.sketch9_width")
sketch9.setExpression("Constraints[9]", "Params.sketch9_height")
pad9 = doc.addObject("PartDesign::Pad", "Pad008")
body.addObject(pad9)
pad9.Profile = sketch9
pad9.setExpression("Length", "Params.pad9_length")

# Sketch on XY plane
sketch10 = doc.addObject("Sketcher::SketchObject", "Sketch009")
body.addObject(sketch10)
sketch10.AttachmentSupport = (doc.XY_Plane, [""])
sketch10.MapMode = "FlatFace"
sketch10.AttachmentOffset = App.Placement(Vector(0, 0, 2060), App.Rotation())
sketch10.addGeometry([
    Part.LineSegment(Vector(68, 20, 0), Vector(68, 6, 0)),  # 0
    Part.LineSegment(Vector(68, 6, 0), Vector(98, 6, 0)),  # 1
    Part.LineSegment(Vector(98, 6, 0), Vector(98, 20, 0)),  # 2
    Part.LineSegment(Vector(98, 20, 0), Vector(68, 20, 0)),  # 3
    Part.LineSegment(Vector(68, 430, 0), Vector(68, 416, 0)),  # 4
    Part.LineSegment(Vector(68, 416, 0), Vector(98, 416, 0)),  # 5
    Part.LineSegment(Vector(98, 416, 0), Vector(98, 430, 0)),  # 6
    Part.LineSegment(Vector(98, 430, 0), Vector(68, 430, 0)),  # 7
], False)
sketch10.addConstraint([
    Sketcher.Constraint("Coincident", 0, 2, 1, 1),
    Sketcher.Constraint("Coincident", 1, 2, 2, 1),
    Sketcher.Constraint("Coincident", 2, 2, 3, 1),
    Sketcher.Constraint("Coincident", 3, 2, 0, 1),
    Sketcher.Constraint("Coincident", 4, 2, 5, 1),
    Sketcher.Constraint("Coincident", 5, 2, 6, 1),
    Sketcher.Constraint("Coincident", 6, 2, 7, 1),
    Sketcher.Constraint("Coincident", 7, 2, 4, 1),
    Sketcher.Constraint("Vertical", 0),
    Sketcher.Constraint("Horizontal", 1),
    Sketcher.Constraint("Vertical", 2),
    Sketcher.Constraint("Horizontal", 3),
    Sketcher.Constraint("Vertical", 4),
    Sketcher.Constraint("Horizontal", 5),
    Sketcher.Constraint("Vertical", 6),
    Sketcher.Constraint("Horizontal", 7),
    Sketcher.Constraint("Vertical", 3, 2, 4, 2),
    Sketcher.Constraint("Vertical", 2, 2, 5, 2),
    Sketcher.Constraint("Equal", 2, 4),
    Sketcher.Constraint("DistanceX", 1, 1, 1, 2, Q("30 mm")),
    Sketcher.Constraint("DistanceY", 0, 2, 0, 1, Q("14 mm")),
    Sketcher.Constraint("DistanceY", -1, 1, 0, 2, Q("6 mm")),
    Sketcher.Constraint("DistanceY", -1, 1, 4, 2, Q("416 mm")),
    Sketcher.Constraint("DistanceX", -1, 1, 0, 2, Q("67.5 mm")),
])
sketch10.setExpression("Constraints[19]", "Params.sketch10_width")
sketch10.setExpression("Constraints[20]", "Params.sketch10_height")
pad10 = doc.addObject("PartDesign::Pad", "Pad009")
body.addObject(pad10)
pad10.Profile = sketch10
pad10.setExpression("Length", "Params.pad10_length")
pad10.Reversed = True

# Sketch on XZ plane
sketch11 = doc.addObject("Sketcher::SketchObject", "Sketch010")
body.addObject(sketch11)
sketch11.AttachmentSupport = (doc.XZ_Plane, [""])
sketch11.MapMode = "FlatFace"
sketch11.AttachmentOffset = App.Placement(Vector(0, 0, -6), App.Rotation())
sketch11.addGeometry([
    Part.Circle(Vector(38, 20, 0), Vector(0, 0, 1), 7),  # 0
    Part.Circle(Vector(128, 20, 0), Vector(0, 0, 1), 7),  # 1
    Part.Circle(Vector(38, 260, 0), Vector(0, 0, 1), 7),  # 2
    Part.Circle(Vector(128, 260, 0), Vector(0, 0, 1), 7),  # 3
    Part.Circle(Vector(38, 500, 0), Vector(0, 0, 1), 7),  # 4
    Part.Circle(Vector(128, 500, 0), Vector(0, 0, 1), 7),  # 5
    Part.Circle(Vector(38, 740, 0), Vector(0, 0, 1), 7),  # 6
    Part.Circle(Vector(128, 740, 0), Vector(0, 0, 1), 7),  # 7
    Part.Circle(Vector(38, 980, 0), Vector(0, 0, 1), 7),  # 8
    Part.Circle(Vector(128, 980, 0), Vector(0, 0, 1), 7),  # 9
    Part.Circle(Vector(38, 1220, 0), Vector(0, 0, 1), 7),  # 10
    Part.Circle(Vector(128, 1220, 0), Vector(0, 0, 1), 7),  # 11
    Part.Circle(Vector(38, 1460, 0), Vector(0, 0, 1), 7),  # 12
    Part.Circle(Vector(128, 1460, 0), Vector(0, 0, 1), 7),  # 13
    Part.Circle(Vector(38, 1700, 0), Vector(0, 0, 1), 7),  # 14
    Part.Circle(Vector(128, 1700, 0), Vector(0, 0, 1), 7),  # 15
    Part.Circle(Vector(38, 1940, 0), Vector(0, 0, 1), 7),  # 16
    Part.Circle(Vector(128, 1940, 0), Vector(0, 0, 1), 7),  # 17
], False)
sketch11.addConstraint([
    Sketcher.Constraint("Equal", 0, 1),
    Sketcher.Constraint("Equal", 1, 2),
    Sketcher.Constraint("Equal", 2, 3),
    Sketcher.Constraint("Equal", 3, 4),
    Sketcher.Constraint("Equal", 4, 5),
    Sketcher.Constraint("Equal", 5, 6),
    Sketcher.Constraint("Equal", 6, 7),
    Sketcher.Constraint("Equal", 7, 8),
    Sketcher.Constraint("Equal", 8, 9),
    Sketcher.Constraint("Equal", 9, 10),
    Sketcher.Constraint("Equal", 10, 11),
    Sketcher.Constraint("Equal", 11, 12),
    Sketcher.Constraint("Equal", 12, 13),
    Sketcher.Constraint("Equal", 13, 14),
    Sketcher.Constraint("Equal", 14, 15),
    Sketcher.Constraint("Equal", 15, 16),
    Sketcher.Constraint("Equal", 16, 17),
    Sketcher.Constraint("Horizontal", 0, 3, 1, 3),
    Sketcher.Constraint("Horizontal", 2, 3, 3, 3),
    Sketcher.Constraint("Horizontal", 4, 3, 5, 3),
    Sketcher.Constraint("Horizontal", 6, 3, 7, 3),
    Sketcher.Constraint("Horizontal", 8, 3, 9, 3),
    Sketcher.Constraint("Horizontal", 10, 3, 11, 3),
    Sketcher.Constraint("Horizontal", 12, 3, 13, 3),
    Sketcher.Constraint("Horizontal", 14, 3, 15, 3),
    Sketcher.Constraint("Horizontal", 16, 3, 17, 3),
    Sketcher.Constraint("Vertical", 0, 3, 2, 3),
    Sketcher.Constraint("Vertical", 1, 3, 3, 3),
    Sketcher.Constraint("Vertical", 2, 3, 4, 3),
    Sketcher.Constraint("Vertical", 3, 3, 5, 3),
    Sketcher.Constraint("Vertical", 4, 3, 6, 3),
    Sketcher.Constraint("Vertical", 5, 3, 7, 3),
    Sketcher.Constraint("Vertical", 6, 3, 8, 3),
    Sketcher.Constraint("Vertical", 7, 3, 9, 3),
    Sketcher.Constraint("Vertical", 8, 3, 10, 3),
    Sketcher.Constraint("Vertical", 9, 3, 11, 3),
    Sketcher.Constraint("Vertical", 10, 3, 12, 3),
    Sketcher.Constraint("Vertical", 11, 3, 13, 3),
    Sketcher.Constraint("Vertical", 12, 3, 14, 3),
    Sketcher.Constraint("Vertical", 13, 3, 15, 3),
    Sketcher.Constraint("Vertical", 14, 3, 16, 3),
    Sketcher.Constraint("Vertical", 15, 3, 17, 3),
    Sketcher.Constraint("Diameter", 0, Q("14 mm")),
    Sketcher.Constraint("DistanceY", -1, 1, 0, 3, Q("20 mm")),
    Sketcher.Constraint("DistanceY", -1, 1, 2, 3, Q("260 mm")),
    Sketcher.Constraint("DistanceY", -1, 1, 4, 3, Q("500 mm")),
    Sketcher.Constraint("DistanceY", -1, 1, 6, 3, Q("740 mm")),
    Sketcher.Constraint("DistanceY", -1, 1, 8, 3, Q("980 mm")),
    Sketcher.Constraint("DistanceY", -1, 1, 10, 3, Q("1220 mm")),
    Sketcher.Constraint("DistanceY", -1, 1, 12, 3, Q("1460 mm")),
    Sketcher.Constraint("DistanceY", -1, 1, 14, 3, Q("1700 mm")),
    Sketcher.Constraint("DistanceY", -1, 1, 16, 3, Q("1940 mm")),
    Sketcher.Constraint("DistanceX", 0, 3, 1, 3, Q("90 mm")),
    Sketcher.Constraint("DistanceX", -1, 1, 0, 3, Q("37.5 mm")),
])
sketch11.setExpression("Constraints[42]", "Params.sketch11_diameter")
pocket1 = doc.addObject("PartDesign::Pocket", "Pocket")
body.addObject(pocket1)
pocket1.Profile = sketch11
pocket1.Type = "ThroughAll"
pocket1.Reversed = True

# Sketch on XY plane
sketch12 = doc.addObject("Sketcher::SketchObject", "Sketch011")
body.addObject(sketch12)
sketch12.AttachmentSupport = (doc.XY_Plane, [""])
sketch12.MapMode = "FlatFace"
sketch12.AttachmentOffset = App.Placement(Vector(0, 0, 2060), App.Rotation())
sketch12.addGeometry([
    Part.Circle(Vector(82, -15, 0), Vector(0, 0, 1), 6),  # 0
    Part.Circle(Vector(-15, -15, 0), Vector(0, 0, 1), 6),  # 1
    Part.Circle(Vector(180, -15, 0), Vector(0, 0, 1), 6),  # 2
    Part.Circle(Vector(-15, 218, 0), Vector(0, 0, 1), 6),  # 3
    Part.Circle(Vector(-15, 451, 0), Vector(0, 0, 1), 6),  # 4
    Part.Circle(Vector(82, 451, 0), Vector(0, 0, 1), 6),  # 5
    Part.Circle(Vector(180, 451, 0), Vector(0, 0, 1), 6),  # 6
    Part.Circle(Vector(-15, 341, 0), Vector(0, 0, 1), 6),  # 7
    Part.Circle(Vector(-15, 95, 0), Vector(0, 0, 1), 6),  # 8
], False)
sketch12.addConstraint([
    Sketcher.Constraint("Equal", 0, 1),
    Sketcher.Constraint("Equal", 1, 2),
    Sketcher.Constraint("Equal", 2, 3),
    Sketcher.Constraint("Equal", 3, 4),
    Sketcher.Constraint("Equal", 4, 5),
    Sketcher.Constraint("Equal", 5, 6),
    Sketcher.Constraint("Equal", 6, 7),
    Sketcher.Constraint("Equal", 7, 8),
    Sketcher.Constraint("Horizontal", 0, 3, 1, 3),
    Sketcher.Constraint("Horizontal", 1, 3, 2, 3),
    Sketcher.Constraint("Horizontal", 4, 3, 5, 3),
    Sketcher.Constraint("Horizontal", 5, 3, 6, 3),
    Sketcher.Constraint("Vertical", 1, 3, 3, 3),
    Sketcher.Constraint("Vertical", 3, 3, 4, 3),
    Sketcher.Constraint("Vertical", 0, 3, 5, 3),
    Sketcher.Constraint("Vertical", 2, 3, 6, 3),
    Sketcher.Constraint("Vertical", 4, 3, 7, 3),
    Sketcher.Constraint("Vertical", 7, 3, 8, 3),
    Sketcher.Constraint("Diameter", 0, Q("12 mm")),
    Sketcher.Constraint("DistanceY", 0, 3, -1, 1, Q("15 mm")),
    Sketcher.Constraint("DistanceX", 1, 3, -1, 1, Q("15 mm")),
    Sketcher.Constraint("DistanceX", -1, 1, 2, 3, Q("180 mm")),
    Sketcher.Constraint("DistanceY", -1, 1, 3, 3, Q("218 mm")),
    Sketcher.Constraint("DistanceY", -1, 1, 4, 3, Q("451 mm")),
    Sketcher.Constraint("DistanceY", -1, 1, 7, 3, Q("341 mm")),
    Sketcher.Constraint("DistanceY", -1, 1, 8, 3, Q("95 mm")),
    Sketcher.Constraint("DistanceX", -1, 1, 0, 3, Q("82.5 mm")),
])
sketch12.setExpression("Constraints[18]", "Params.sketch12_diameter")
pocket2 = doc.addObject("PartDesign::Pocket", "Pocket001")
body.addObject(pocket2)
pocket2.Profile = sketch12
pocket2.setExpression("Length", "Params.pocket2_length")

doc.recompute()
